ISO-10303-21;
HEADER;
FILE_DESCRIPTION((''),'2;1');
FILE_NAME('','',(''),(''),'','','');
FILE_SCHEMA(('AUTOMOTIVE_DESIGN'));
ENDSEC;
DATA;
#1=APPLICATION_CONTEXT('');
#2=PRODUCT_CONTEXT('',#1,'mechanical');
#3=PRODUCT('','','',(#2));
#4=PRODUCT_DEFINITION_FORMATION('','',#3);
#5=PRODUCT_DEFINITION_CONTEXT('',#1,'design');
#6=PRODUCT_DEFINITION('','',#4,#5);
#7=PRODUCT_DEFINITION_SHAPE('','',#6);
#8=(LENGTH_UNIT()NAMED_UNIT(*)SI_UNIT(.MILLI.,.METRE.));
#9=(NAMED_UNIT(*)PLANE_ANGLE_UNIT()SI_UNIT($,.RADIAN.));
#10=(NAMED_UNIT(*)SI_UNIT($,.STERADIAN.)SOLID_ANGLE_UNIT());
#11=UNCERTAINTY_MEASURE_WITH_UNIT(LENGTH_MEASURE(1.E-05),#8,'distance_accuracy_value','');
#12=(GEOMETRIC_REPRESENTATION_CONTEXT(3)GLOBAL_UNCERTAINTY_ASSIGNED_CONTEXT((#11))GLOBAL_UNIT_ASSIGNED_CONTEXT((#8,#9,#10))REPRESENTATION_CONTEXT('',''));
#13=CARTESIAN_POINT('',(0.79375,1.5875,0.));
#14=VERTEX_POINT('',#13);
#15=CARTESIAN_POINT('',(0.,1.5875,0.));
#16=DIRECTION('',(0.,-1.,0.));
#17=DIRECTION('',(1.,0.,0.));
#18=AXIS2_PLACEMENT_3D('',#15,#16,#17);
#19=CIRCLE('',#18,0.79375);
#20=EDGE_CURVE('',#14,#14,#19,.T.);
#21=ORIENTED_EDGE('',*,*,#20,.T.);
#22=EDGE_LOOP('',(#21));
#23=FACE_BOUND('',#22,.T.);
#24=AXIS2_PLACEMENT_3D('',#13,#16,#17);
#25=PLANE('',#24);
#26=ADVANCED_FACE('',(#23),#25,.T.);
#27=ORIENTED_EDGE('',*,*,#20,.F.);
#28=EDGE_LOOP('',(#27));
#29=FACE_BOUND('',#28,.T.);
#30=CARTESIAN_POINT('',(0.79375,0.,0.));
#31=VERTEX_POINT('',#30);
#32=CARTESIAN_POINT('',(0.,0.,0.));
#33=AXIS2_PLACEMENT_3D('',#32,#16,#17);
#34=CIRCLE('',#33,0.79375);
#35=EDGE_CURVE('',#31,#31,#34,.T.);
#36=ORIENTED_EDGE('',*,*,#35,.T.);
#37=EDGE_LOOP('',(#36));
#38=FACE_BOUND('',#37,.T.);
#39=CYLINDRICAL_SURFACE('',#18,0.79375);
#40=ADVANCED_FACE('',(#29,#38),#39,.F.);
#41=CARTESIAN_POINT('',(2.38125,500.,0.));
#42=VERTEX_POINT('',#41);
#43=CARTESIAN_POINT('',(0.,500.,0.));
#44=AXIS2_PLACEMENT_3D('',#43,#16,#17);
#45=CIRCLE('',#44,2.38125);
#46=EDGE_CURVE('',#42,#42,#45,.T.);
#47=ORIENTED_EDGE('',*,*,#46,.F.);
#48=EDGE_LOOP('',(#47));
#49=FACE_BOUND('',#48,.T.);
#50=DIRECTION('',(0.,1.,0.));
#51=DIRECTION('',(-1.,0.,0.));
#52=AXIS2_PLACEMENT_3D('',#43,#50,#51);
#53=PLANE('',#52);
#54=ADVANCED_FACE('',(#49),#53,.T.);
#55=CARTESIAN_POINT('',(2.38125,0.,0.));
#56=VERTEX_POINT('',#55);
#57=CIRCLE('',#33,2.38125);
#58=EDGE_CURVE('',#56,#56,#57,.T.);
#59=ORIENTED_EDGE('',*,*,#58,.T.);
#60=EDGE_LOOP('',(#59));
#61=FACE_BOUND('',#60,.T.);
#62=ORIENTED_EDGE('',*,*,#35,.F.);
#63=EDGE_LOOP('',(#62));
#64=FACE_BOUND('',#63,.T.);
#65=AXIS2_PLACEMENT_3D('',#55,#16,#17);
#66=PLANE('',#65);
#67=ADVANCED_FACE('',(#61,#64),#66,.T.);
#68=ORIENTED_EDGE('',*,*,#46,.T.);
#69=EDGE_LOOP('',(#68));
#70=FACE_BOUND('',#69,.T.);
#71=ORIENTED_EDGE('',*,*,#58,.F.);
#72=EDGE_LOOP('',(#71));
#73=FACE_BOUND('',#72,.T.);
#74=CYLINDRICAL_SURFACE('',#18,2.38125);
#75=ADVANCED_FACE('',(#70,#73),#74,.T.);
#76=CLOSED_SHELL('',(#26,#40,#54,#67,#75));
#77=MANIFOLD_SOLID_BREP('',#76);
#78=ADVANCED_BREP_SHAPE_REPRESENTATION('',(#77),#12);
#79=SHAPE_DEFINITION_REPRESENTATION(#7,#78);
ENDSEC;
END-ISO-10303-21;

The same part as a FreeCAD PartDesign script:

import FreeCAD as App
import Part
import Sketcher
Q = App.Units.Quantity

doc = App.newDocument("Part")
params = doc.addObject("Spreadsheet::Sheet", "Params")
for row, (alias, value) in enumerate([
    ("sketch1_width", "0.09375 in"),
    ("sketch1_width2", "0.03125 in"),
    ("revolution_angle", "360 deg"),
], start=1):
    params.set(f"A{row}", alias)
    params.set(f"B{row}", "=" + value)
    params.setAlias(f"B{row}", alias)

body = doc.addObject("PartDesign::Body", "Body")

sketch1 = doc.addObject("Sketcher::SketchObject", "Sketch")
body.addObject(sketch1)
sketch1.AttachmentSupport = (doc.XY_Plane, [""])
sketch1.MapMode = "FlatFace"
sketch1.addGeometry([
    Part.LineSegment(App.Vector(2.4, 0, 0), App.Vector(2.4, 500, 0)),
    Part.LineSegment(App.Vector(2.4, 500, 0), App.Vector(0, 500, 0)),
    Part.LineSegment(App.Vector(0, 500, 0), App.Vector(0, 1.6, 0)),
    Part.LineSegment(App.Vector(0, 1.6, 0), App.Vector(0.8, 1.6, 0)),
    Part.LineSegment(App.Vector(0.8, 1.6, 0), App.Vector(0.8, 0, 0)),
    Part.LineSegment(App.Vector(0.8, 0, 0), App.Vector(2.4, 0, 0)),
], False)
sketch1.addConstraint([
    Sketcher.Constraint("Coincident", 0, 2, 1, 1),
    Sketcher.Constraint("Coincident", 1, 2, 2, 1),
    Sketcher.Constraint("Coincident", 2, 2, 3, 1),
    Sketcher.Constraint("Coincident", 3, 2, 4, 1),
    Sketcher.Constraint("Coincident", 4, 2, 5, 1),
    Sketcher.Constraint("Coincident", 5, 2, 0, 1),
    Sketcher.Constraint("Vertical", 0),
    Sketcher.Constraint("Horizontal", 1),
    Sketcher.Constraint("Vertical", 2),
    Sketcher.Constraint("Horizontal", 3),
    Sketcher.Constraint("Vertical", 4),
    Sketcher.Constraint("Horizontal", 5),
    Sketcher.Constraint("PointOnObject", 1, 2, -2),
    Sketcher.Constraint("PointOnObject", 4, 2, -1),
    Sketcher.Constraint("Equal", 5, 4),
    Sketcher.Constraint("DistanceX", 1, 2, 1, 1, Q("0.09375 in")),
    Sketcher.Constraint("DistanceX", 3, 1, 3, 2, Q("0.03125 in")),
    Sketcher.Constraint("DistanceY", 0, 1, 0, 2, Q("500 mm")),
])
sketch1.setExpression("Constraints[15]", "Params.sketch1_width")
sketch1.setExpression("Constraints[16]", "Params.sketch1_width2")
revolution = doc.addObject("PartDesign::Revolution", "Revolution")
body.addObject(revolution)
revolution.Profile = sketch1
revolution.ReferenceAxis = (sketch1, ["V_Axis"])
revolution.setExpression("Angle", "Params.revolution_angle")

doc.recompute()
